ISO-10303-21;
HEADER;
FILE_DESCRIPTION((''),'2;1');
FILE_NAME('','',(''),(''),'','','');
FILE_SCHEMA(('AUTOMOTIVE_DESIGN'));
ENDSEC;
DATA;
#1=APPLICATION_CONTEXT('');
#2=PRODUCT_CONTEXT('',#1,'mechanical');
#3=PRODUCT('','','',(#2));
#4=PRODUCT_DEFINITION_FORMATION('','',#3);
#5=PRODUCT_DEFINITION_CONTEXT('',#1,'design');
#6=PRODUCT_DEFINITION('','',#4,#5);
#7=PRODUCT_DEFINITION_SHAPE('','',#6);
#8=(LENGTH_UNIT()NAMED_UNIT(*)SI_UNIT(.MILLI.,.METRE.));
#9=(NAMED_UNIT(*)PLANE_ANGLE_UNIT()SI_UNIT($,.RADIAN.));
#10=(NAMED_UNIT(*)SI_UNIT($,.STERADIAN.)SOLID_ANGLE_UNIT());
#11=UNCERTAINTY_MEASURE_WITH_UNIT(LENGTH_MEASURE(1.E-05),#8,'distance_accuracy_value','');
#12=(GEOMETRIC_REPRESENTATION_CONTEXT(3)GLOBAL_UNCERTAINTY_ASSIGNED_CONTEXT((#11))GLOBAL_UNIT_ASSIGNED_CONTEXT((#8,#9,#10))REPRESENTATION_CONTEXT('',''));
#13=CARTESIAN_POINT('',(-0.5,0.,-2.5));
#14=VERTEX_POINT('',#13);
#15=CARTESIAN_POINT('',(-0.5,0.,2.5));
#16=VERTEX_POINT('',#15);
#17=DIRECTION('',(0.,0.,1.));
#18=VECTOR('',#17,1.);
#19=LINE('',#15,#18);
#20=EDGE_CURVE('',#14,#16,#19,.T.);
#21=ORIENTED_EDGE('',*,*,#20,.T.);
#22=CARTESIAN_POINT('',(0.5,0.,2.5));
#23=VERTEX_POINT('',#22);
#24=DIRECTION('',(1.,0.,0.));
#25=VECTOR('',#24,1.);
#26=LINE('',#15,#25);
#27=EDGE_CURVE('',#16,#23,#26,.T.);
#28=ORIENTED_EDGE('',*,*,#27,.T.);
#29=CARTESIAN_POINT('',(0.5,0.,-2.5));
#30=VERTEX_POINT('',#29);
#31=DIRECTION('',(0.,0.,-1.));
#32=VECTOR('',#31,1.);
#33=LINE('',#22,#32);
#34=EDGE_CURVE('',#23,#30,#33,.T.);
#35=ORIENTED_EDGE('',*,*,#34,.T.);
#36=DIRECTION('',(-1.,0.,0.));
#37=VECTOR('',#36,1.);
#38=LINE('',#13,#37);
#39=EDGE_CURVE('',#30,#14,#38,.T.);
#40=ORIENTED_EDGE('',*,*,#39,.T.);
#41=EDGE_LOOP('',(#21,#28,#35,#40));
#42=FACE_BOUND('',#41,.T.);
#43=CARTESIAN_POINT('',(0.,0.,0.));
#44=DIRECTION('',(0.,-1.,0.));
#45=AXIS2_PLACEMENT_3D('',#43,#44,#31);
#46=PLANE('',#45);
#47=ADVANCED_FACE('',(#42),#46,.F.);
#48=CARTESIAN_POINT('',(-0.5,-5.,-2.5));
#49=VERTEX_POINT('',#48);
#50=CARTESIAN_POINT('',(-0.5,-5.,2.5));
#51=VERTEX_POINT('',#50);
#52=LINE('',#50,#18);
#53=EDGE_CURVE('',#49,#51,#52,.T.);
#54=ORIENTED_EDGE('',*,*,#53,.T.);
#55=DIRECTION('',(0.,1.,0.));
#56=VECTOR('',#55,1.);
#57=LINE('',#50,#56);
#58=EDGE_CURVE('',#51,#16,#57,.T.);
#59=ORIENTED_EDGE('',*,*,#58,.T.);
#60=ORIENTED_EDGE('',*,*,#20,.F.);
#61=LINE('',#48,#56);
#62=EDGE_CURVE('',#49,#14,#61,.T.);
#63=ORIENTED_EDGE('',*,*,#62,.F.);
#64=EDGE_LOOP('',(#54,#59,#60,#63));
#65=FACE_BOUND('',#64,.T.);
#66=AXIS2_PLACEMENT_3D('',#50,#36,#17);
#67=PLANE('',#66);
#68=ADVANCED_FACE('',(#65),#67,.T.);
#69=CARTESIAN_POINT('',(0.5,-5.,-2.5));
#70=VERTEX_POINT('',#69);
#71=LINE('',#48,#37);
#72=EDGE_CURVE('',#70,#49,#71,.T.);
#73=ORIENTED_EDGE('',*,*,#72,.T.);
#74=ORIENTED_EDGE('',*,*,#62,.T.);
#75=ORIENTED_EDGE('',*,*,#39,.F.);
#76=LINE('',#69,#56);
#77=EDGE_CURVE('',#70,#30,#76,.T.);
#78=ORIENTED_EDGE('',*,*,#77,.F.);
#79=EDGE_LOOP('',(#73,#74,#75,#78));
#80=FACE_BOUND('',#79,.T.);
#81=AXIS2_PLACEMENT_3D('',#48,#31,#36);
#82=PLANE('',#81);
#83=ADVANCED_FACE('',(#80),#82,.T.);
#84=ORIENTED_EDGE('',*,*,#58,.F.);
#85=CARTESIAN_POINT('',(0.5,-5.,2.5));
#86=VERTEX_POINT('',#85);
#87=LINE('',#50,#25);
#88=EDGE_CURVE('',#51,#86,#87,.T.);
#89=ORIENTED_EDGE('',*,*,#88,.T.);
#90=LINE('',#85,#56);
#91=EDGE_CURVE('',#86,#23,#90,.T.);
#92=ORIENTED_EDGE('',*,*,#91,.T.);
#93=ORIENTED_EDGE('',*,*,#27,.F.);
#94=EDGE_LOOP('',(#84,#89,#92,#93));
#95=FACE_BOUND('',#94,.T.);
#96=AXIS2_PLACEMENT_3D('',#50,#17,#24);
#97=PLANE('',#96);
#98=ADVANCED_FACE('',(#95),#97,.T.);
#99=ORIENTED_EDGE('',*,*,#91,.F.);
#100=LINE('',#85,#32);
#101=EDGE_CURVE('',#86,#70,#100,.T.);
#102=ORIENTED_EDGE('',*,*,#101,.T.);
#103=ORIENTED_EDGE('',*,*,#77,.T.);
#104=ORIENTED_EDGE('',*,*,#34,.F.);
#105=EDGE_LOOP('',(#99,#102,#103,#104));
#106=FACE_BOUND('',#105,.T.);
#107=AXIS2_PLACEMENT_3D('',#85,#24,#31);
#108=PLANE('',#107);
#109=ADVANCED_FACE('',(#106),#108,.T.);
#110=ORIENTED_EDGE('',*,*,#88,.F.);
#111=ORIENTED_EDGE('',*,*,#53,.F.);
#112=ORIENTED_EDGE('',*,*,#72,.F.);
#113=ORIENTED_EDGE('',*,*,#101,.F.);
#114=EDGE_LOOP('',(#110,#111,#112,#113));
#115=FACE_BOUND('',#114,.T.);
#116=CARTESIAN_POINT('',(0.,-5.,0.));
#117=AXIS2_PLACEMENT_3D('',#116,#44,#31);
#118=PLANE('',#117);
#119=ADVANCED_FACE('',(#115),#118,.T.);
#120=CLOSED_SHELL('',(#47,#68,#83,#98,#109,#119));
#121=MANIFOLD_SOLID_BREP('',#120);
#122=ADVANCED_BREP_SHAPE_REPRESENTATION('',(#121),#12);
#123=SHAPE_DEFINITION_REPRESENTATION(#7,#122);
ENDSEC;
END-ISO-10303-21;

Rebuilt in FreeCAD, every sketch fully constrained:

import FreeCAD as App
import Part
import Sketcher
from FreeCAD import Vector
Q = App.Units.Quantity


def add_polygon(sketch, points):
    """Adds a closed chain of lines whose ends are joined by coincident constraints."""
    first, n = sketch.GeometryCount, len(points)
    for a, b in zip(points, points[1:] + points[:1]):
        sketch.addGeometry(Part.LineSegment(App.Vector(*a, 0), App.Vector(*b, 0)), False)
    for i in range(n):
        sketch.addConstraint(Sketcher.Constraint("Coincident", first + i, 2, first + (i + 1) % n, 1))

doc = App.newDocument("Part")
body = doc.addObject("PartDesign::Body", "Body")

sketch1 = body.newObject("Sketcher::SketchObject", "Sketch")
sketch1.AttachmentSupport = (doc.getObject("XZ_Plane"), [""])
sketch1.MapMode = "FlatFace"
add_polygon(sketch1, [(-0.5, -2.5), (-0.5, 2.5), (0.5, 2.5), (0.5, -2.5)])
sketch1.addConstraint([
    Sketcher.Constraint("Vertical", 0),
    Sketcher.Constraint("Horizontal", 1),
    Sketcher.Constraint("Vertical", 2),
    Sketcher.Constraint("Horizontal", 3),
    Sketcher.Constraint("Symmetric", 0, 2, 2, 2, -1, 1),
    Sketcher.Constraint("DistanceX", 1, 1, 1, 2, Q("1 mm")),
    Sketcher.Constraint("DistanceY", 0, 1, 0, 2, Q("5 mm")),
])
pad1 = body.newObject("PartDesign::Pad", "Pad")
pad1.Profile = sketch1
pad1.Length = 5

doc.recompute()
